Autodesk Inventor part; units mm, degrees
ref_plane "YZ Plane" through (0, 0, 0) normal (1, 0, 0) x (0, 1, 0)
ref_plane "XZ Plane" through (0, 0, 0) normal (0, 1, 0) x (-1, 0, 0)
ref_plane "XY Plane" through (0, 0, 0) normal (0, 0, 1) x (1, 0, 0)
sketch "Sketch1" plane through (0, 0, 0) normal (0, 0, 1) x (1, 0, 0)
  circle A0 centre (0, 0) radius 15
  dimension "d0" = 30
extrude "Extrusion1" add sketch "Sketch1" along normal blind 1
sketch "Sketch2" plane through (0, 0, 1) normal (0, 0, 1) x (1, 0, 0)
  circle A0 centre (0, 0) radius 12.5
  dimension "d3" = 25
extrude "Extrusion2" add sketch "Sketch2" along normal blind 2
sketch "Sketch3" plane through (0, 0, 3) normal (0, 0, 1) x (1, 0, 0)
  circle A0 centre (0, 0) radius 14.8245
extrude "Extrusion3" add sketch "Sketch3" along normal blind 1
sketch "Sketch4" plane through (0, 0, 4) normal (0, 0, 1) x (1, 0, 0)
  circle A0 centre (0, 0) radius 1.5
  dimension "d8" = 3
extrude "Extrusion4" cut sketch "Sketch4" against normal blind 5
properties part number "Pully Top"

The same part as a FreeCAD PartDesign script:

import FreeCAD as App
import Part
import Sketcher
from FreeCAD import Vector

doc = App.newDocument("Part")
params = doc.addObject("Spreadsheet::Sheet", "Params")
for row, (alias, value) in enumerate([
    ("sketch1_diameter", "30 mm"),
    ("pad1_length", "1 mm"),
    ("sketch2_diameter", "25 mm"),
    ("pad2_length", "2 mm"),
    ("pad3_length", "1 mm"),
    ("sketch4_diameter", "3 mm"),
    ("pocket1_length", "5 mm"),
], start=1):
    params.set(f"A{row}", alias)
    params.set(f"B{row}", "=" + value)
    params.setAlias(f"B{row}", alias)

body = doc.addObject("PartDesign::Body", "Body")

sketch1 = body.newObject("Sketcher::SketchObject", "Sketch")
sketch1.AttachmentSupport = (doc.getObject("XY_Plane"), [""])
sketch1.MapMode = "FlatFace"
sketch1.addGeometry(Part.Circle(Vector(0, 0, 0), Vector(0, 0, 1), 15), False)
sketch1.addConstraint(Sketcher.Constraint("Coincident", 0, 3, -1, 1))
sketch1.addConstraint(Sketcher.Constraint("Diameter", 0, 30.0))
sketch1.setExpression("Constraints[1]", "Params.sketch1_diameter")
pad1 = body.newObject("PartDesign::Pad", "Pad")
pad1.Profile = sketch1
pad1.setExpression("Length", "Params.pad1_length")

sketch2 = body.newObject("Sketcher::SketchObject", "Sketch001")
sketch2.AttachmentSupport = (doc.getObject("XY_Plane"), [""])
sketch2.MapMode = "FlatFace"
sketch2.AttachmentOffset = App.Placement(Vector(0, 0, 1), App.Rotation())
sketch2.addGeometry(Part.Circle(Vector(0, 0, 0), Vector(0, 0, 1), 12.5), False)
sketch2.addConstraint(Sketcher.Constraint("Coincident", 0, 3, -1, 1))
sketch2.addConstraint(Sketcher.Constraint("Diameter", 0, 25.0))
sketch2.setExpression("Constraints[1]", "Params.sketch2_diameter")
pad2 = body.newObject("PartDesign::Pad", "Pad001")
pad2.Profile = sketch2
pad2.setExpression("Length", "Params.pad2_length")

sketch3 = body.newObject("Sketcher::SketchObject", "Sketch002")
sketch3.AttachmentSupport = (doc.getObject("XY_Plane"), [""])
sketch3.MapMode = "FlatFace"
sketch3.AttachmentOffset = App.Placement(Vector(0, 0, 3), App.Rotation())
sketch3.addGeometry(Part.Circle(Vector(0, 0, 0), Vector(0, 0, 1), 14.8245), False)
sketch3.addConstraint(Sketcher.Constraint("Coincident", 0, 3, -1, 1))
sketch3.addConstraint(Sketcher.Constraint("Diameter", 0, 29.649))
pad3 = body.newObject("PartDesign::Pad", "Pad002")
pad3.Profile = sketch3
pad3.setExpression("Length", "Params.pad3_length")

sketch4 = body.newObject("Sketcher::SketchObject", "Sketch003")
sketch4.AttachmentSupport = (doc.getObject("XY_Plane"), [""])
sketch4.MapMode = "FlatFace"
sketch4.AttachmentOffset = App.Placement(Vector(0, 0, 4), App.Rotation())
sketch4.addGeometry(Part.Circle(Vector(0, 0, 0), Vector(0, 0, 1), 1.5), False)
sketch4.addConstraint(Sketcher.Constraint("Coincident", 0, 3, -1, 1))
sketch4.addConstraint(Sketcher.Constraint("Diameter", 0, 3.0))
sketch4.setExpression("Constraints[1]", "Params.sketch4_diameter")
pocket1 = body.newObject("PartDesign::Pocket", "Pocket")
pocket1.Profile = sketch4
pocket1.setExpression("Length", "Params.pocket1_length")

doc.recompute()
